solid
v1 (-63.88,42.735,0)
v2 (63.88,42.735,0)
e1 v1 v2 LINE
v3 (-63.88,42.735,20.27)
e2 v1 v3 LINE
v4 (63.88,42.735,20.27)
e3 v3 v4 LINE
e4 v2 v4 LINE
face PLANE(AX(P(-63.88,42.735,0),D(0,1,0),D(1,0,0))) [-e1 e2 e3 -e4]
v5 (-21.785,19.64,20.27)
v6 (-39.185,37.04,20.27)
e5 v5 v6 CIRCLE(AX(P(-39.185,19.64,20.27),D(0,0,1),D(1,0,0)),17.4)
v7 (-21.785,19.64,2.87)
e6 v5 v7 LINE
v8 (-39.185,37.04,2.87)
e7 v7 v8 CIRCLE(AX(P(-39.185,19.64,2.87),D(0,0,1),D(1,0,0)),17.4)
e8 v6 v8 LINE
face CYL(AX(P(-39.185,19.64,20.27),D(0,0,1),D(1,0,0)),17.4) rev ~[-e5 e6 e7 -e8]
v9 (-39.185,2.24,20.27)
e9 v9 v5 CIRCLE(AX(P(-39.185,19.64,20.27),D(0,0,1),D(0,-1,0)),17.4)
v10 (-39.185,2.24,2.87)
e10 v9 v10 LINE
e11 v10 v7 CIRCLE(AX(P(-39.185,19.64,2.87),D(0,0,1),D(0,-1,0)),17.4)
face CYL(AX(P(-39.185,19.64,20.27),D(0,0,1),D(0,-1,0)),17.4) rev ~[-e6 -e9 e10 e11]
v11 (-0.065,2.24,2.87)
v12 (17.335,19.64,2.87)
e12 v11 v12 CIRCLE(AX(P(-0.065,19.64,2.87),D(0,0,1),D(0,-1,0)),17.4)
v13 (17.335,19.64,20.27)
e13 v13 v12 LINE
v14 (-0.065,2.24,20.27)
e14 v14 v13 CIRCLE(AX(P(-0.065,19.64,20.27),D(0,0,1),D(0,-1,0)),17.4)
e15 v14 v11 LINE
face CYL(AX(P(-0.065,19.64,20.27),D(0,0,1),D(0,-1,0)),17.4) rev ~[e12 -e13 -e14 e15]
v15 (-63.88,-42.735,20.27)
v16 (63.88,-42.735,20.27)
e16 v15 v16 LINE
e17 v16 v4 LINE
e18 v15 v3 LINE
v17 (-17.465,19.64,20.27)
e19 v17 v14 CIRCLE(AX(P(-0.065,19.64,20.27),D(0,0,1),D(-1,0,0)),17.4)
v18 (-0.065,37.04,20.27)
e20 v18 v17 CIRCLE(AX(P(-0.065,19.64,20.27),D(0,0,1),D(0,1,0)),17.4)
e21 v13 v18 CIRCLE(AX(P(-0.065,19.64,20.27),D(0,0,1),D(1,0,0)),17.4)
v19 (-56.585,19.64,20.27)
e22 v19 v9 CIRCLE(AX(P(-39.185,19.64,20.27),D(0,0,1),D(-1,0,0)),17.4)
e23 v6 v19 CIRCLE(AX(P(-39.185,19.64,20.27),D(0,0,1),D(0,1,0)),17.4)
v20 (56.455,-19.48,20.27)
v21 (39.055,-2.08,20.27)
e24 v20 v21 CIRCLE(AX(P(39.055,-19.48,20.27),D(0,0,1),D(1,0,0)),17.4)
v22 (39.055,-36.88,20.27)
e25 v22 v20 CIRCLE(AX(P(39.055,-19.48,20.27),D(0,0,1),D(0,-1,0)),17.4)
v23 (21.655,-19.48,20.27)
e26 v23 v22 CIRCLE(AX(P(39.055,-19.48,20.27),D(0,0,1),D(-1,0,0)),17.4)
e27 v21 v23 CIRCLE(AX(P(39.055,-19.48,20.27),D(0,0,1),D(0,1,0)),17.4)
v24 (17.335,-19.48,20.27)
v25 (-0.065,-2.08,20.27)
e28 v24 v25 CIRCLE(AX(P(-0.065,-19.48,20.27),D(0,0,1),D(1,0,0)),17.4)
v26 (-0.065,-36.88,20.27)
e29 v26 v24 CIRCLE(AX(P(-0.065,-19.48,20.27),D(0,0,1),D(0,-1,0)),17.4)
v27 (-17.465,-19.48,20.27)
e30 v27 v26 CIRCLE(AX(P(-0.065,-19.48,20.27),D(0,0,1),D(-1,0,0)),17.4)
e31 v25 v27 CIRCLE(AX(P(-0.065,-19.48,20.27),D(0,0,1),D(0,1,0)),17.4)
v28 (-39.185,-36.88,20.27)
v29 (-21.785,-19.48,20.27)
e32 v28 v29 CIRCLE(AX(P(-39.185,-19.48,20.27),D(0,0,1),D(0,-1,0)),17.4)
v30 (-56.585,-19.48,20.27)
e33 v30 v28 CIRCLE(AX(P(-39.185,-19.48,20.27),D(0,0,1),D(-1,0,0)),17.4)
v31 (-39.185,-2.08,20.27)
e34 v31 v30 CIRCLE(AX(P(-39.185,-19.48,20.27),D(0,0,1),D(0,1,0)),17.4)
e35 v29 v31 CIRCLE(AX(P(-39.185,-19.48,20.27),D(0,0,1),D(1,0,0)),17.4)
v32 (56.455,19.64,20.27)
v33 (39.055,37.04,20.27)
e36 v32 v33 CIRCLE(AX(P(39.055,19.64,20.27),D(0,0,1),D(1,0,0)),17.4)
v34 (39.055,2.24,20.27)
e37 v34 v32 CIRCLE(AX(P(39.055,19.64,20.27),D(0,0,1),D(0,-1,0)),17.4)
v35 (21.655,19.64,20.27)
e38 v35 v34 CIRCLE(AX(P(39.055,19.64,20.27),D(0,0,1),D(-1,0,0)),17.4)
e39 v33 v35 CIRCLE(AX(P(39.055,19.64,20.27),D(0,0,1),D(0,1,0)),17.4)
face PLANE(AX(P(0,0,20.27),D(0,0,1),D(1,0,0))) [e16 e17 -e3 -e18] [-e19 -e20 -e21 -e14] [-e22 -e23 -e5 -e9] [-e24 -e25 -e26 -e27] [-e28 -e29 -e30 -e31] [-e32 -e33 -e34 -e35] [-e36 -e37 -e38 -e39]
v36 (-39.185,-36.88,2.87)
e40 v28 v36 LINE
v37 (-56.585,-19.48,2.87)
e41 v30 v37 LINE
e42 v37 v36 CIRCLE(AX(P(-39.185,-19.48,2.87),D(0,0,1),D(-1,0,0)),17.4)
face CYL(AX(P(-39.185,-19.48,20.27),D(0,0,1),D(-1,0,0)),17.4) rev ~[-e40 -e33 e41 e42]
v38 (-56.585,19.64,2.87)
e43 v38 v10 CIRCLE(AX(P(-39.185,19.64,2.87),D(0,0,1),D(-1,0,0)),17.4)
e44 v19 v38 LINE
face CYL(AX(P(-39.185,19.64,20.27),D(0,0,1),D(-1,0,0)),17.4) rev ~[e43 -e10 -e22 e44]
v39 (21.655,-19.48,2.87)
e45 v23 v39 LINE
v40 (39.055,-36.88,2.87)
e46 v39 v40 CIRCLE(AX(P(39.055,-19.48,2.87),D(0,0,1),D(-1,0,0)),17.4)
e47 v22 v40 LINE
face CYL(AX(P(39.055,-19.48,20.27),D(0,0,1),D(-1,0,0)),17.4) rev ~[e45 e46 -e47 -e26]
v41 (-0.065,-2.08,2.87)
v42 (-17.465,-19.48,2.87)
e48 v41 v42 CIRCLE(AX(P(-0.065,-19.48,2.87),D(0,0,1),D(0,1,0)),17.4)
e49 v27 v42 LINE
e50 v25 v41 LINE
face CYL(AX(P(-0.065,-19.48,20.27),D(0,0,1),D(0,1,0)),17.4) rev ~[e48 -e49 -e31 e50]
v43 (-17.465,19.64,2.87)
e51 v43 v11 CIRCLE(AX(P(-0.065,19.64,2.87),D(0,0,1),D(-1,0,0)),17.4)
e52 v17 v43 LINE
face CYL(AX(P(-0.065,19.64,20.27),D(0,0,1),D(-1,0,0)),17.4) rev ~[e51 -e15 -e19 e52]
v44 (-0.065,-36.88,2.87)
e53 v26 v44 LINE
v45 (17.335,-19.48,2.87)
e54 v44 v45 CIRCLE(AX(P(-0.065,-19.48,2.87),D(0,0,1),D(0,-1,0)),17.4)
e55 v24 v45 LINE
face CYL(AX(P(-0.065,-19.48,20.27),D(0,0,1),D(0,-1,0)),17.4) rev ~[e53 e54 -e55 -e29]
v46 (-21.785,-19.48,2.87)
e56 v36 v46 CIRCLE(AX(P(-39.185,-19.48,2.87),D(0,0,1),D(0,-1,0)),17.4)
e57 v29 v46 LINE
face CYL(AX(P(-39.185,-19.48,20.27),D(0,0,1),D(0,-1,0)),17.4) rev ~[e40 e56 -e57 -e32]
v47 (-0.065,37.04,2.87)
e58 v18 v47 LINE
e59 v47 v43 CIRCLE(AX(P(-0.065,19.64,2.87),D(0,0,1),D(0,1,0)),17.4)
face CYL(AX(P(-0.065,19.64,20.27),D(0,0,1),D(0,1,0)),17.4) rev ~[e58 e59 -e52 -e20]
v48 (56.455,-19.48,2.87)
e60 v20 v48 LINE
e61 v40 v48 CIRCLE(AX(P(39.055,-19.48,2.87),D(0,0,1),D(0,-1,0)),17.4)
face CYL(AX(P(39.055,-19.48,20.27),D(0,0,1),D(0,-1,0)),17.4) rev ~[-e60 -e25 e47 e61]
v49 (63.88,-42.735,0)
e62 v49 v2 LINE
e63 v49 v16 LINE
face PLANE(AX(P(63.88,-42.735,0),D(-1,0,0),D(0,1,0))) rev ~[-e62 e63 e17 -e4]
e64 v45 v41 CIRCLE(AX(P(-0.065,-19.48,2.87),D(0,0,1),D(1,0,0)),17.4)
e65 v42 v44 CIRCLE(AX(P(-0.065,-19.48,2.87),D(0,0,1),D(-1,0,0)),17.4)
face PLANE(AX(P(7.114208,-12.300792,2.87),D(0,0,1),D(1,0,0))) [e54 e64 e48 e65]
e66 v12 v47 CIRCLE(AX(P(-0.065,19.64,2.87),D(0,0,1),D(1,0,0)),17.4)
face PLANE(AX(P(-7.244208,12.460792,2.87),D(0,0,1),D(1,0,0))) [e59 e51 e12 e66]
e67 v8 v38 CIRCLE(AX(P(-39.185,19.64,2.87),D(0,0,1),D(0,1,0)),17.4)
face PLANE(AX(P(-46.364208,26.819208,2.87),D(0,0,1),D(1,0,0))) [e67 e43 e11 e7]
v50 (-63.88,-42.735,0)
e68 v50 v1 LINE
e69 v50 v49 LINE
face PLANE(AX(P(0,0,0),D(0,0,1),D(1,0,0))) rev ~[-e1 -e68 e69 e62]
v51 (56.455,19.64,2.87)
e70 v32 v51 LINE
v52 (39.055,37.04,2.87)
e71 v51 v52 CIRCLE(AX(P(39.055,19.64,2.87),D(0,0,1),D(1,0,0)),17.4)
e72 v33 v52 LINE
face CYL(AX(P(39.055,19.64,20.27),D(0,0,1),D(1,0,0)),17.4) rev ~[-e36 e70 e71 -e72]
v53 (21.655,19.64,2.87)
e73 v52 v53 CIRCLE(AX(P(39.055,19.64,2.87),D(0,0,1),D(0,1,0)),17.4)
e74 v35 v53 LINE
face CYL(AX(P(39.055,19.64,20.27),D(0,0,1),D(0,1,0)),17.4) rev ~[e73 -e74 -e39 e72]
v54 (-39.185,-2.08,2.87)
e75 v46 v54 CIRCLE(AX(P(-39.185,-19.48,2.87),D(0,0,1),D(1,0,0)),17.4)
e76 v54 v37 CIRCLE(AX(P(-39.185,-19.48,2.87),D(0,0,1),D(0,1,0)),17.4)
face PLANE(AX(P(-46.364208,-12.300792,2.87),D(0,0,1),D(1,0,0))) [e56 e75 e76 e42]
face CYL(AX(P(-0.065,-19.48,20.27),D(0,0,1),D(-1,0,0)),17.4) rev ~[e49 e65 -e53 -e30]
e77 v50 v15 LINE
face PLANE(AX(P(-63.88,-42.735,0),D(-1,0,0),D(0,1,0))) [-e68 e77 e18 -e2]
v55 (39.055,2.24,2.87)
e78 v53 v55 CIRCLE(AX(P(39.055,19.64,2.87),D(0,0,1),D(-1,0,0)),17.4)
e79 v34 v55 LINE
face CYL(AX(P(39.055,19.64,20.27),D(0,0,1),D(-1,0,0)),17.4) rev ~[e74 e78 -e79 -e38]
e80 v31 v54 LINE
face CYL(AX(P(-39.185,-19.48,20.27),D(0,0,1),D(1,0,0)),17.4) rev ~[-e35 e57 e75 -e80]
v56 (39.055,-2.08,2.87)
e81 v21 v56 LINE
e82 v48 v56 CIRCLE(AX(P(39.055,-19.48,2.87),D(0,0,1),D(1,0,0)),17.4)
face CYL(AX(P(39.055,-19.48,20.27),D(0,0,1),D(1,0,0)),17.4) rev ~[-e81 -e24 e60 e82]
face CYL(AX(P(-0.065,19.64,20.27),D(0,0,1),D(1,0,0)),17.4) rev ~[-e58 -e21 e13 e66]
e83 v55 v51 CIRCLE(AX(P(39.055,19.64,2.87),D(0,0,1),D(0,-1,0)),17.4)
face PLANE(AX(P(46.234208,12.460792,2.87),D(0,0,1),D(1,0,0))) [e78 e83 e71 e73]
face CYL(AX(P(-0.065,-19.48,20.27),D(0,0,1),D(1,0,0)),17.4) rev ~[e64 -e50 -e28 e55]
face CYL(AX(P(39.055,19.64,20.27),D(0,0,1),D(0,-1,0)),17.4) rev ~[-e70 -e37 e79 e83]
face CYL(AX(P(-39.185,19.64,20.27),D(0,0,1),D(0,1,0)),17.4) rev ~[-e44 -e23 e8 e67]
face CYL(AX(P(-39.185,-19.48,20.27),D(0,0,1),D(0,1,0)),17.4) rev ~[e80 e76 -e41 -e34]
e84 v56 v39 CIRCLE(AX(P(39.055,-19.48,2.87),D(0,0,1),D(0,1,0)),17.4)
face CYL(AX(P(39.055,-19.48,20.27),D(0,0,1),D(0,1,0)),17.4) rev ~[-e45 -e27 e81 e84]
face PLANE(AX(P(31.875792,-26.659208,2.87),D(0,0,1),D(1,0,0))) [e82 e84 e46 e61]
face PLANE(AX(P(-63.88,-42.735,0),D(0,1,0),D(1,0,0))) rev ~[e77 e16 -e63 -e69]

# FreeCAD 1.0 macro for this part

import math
import FreeCAD as App
import Part
import Sketcher
from FreeCAD import Vector


def add_polygon(sketch, points):
    """Adds a closed chain of lines whose ends are joined by coincident constraints."""
    first, n = sketch.GeometryCount, len(points)
    for a, b in zip(points, points[1:] + points[:1]):
        sketch.addGeometry(Part.LineSegment(App.Vector(*a, 0), App.Vector(*b, 0)), False)
    for i in range(n):
        sketch.addConstraint(Sketcher.Constraint("Coincident", first + i, 2, first + (i + 1) % n, 1))

doc = App.newDocument("Part")
body = doc.addObject("PartDesign::Body", "Body")

# Sketch on XY plane
sketch1 = body.newObject("Sketcher::SketchObject", "Sketch")
sketch1.AttachmentSupport = (doc.getObject("XY_Plane"), [""])
sketch1.MapMode = "FlatFace"
add_polygon(sketch1, [(-64, 43), (-64, -43), (64, -43), (64, 43)])  # lines 0-3
sketch1.addConstraint([
    Sketcher.Constraint("Vertical", 0),
    Sketcher.Constraint("Horizontal", 1),
    Sketcher.Constraint("Vertical", 2),
    Sketcher.Constraint("Horizontal", 3),
    Sketcher.Constraint("Symmetric", 0, 2, 2, 2, -1, 1),
    Sketcher.Constraint("DistanceX", 1, 1, 1, 2, 127.76),
    Sketcher.Constraint("DistanceY", 0, 2, 0, 1, 85.47),
])
pad1 = body.newObject("PartDesign::Pad", "Pad")
pad1.Profile = sketch1
pad1.Length = 20.27

# Sketch on XY plane
sketch2 = body.newObject("Sketcher::SketchObject", "Sketch001")
sketch2.AttachmentSupport = (doc.getObject("XY_Plane"), [""])
sketch2.MapMode = "FlatFace"
sketch2.AttachmentOffset = App.Placement(Vector(0, 0, 20.27), App.Rotation())
sketch2.addGeometry([
    Part.ArcOfCircle(Part.Circle(Vector(-39, 20, 0), Vector(0, 0, 1), 17), math.radians(90), math.radians(180)),  # 0
    Part.ArcOfCircle(Part.Circle(Vector(-39, 20, 0), Vector(0, 0, 1), 17), math.radians(180), math.radians(270)),  # 1
    Part.ArcOfCircle(Part.Circle(Vector(-39, 20, 0), Vector(0, 0, 1), 17), math.radians(-90), math.radians(0)),  # 2
    Part.ArcOfCircle(Part.Circle(Vector(-39, 20, 0), Vector(0, 0, 1), 17), math.radians(0), math.radians(90)),  # 3
    Part.ArcOfCircle(Part.Circle(Vector(-39, -19, 0), Vector(0, 0, 1), 17), math.radians(90), math.radians(180)),  # 4
    Part.ArcOfCircle(Part.Circle(Vector(-39, -19, 0), Vector(0, 0, 1), 17), math.radians(180), math.radians(270)),  # 5
    Part.ArcOfCircle(Part.Circle(Vector(-39, -19, 0), Vector(0, 0, 1), 17), math.radians(-90), math.radians(0)),  # 6
    Part.ArcOfCircle(Part.Circle(Vector(-39, -19, 0), Vector(0, 0, 1), 17), math.radians(0), math.radians(90)),  # 7
    Part.ArcOfCircle(Part.Circle(Vector(0, 20, 0), Vector(0, 0, 1), 17), math.radians(0), math.radians(90)),  # 8
    Part.ArcOfCircle(Part.Circle(Vector(0, 20, 0), Vector(0, 0, 1), 17), math.radians(90), math.radians(180)),  # 9
    Part.ArcOfCircle(Part.Circle(Vector(0, 20, 0), Vector(0, 0, 1), 17), math.radians(180), math.radians(270)),  # 10
    Part.ArcOfCircle(Part.Circle(Vector(0, 20, 0), Vector(0, 0, 1), 17), math.radians(-90), math.radians(0)),  # 11
    Part.ArcOfCircle(Part.Circle(Vector(0, -19, 0), Vector(0, 0, 1), 17), math.radians(0), math.radians(90)),  # 12
    Part.ArcOfCircle(Part.Circle(Vector(0, -19, 0), Vector(0, 0, 1), 17), math.radians(90), math.radians(180)),  # 13
    Part.ArcOfCircle(Part.Circle(Vector(0, -19, 0), Vector(0, 0, 1), 17), math.radians(180), math.radians(270)),  # 14
    Part.ArcOfCircle(Part.Circle(Vector(0, -19, 0), Vector(0, 0, 1), 17), math.radians(-90), math.radians(0)),  # 15
    Part.ArcOfCircle(Part.Circle(Vector(39, -19, 0), Vector(0, 0, 1), 17), math.radians(0), math.radians(90)),  # 16
    Part.ArcOfCircle(Part.Circle(Vector(39, -19, 0), Vector(0, 0, 1), 17), math.radians(90), math.radians(180)),  # 17
    Part.ArcOfCircle(Part.Circle(Vector(39, -19, 0), Vector(0, 0, 1), 17), math.radians(180), math.radians(270)),  # 18
    Part.ArcOfCircle(Part.Circle(Vector(39, -19, 0), Vector(0, 0, 1), 17), math.radians(-90), math.radians(0)),  # 19
    Part.ArcOfCircle(Part.Circle(Vector(39, 20, 0), Vector(0, 0, 1), 17), math.radians(-90), math.radians(0)),  # 20
    Part.ArcOfCircle(Part.Circle(Vector(39, 20, 0), Vector(0, 0, 1), 17), math.radians(0), math.radians(90)),  # 21
    Part.ArcOfCircle(Part.Circle(Vector(39, 20, 0), Vector(0, 0, 1), 17), math.radians(90), math.radians(180)),  # 22
    Part.ArcOfCircle(Part.Circle(Vector(39, 20, 0), Vector(0, 0, 1), 17), math.radians(180), math.radians(270)),  # 23
], False)
sketch2.addConstraint([
    Sketcher.Constraint("Tangent", 0, 2, 1, 1),
    Sketcher.Constraint("Tangent", 1, 2, 2, 1),
    Sketcher.Constraint("Tangent", 2, 2, 3, 1),
    Sketcher.Constraint("Tangent", 3, 2, 0, 1),
    Sketcher.Constraint("Tangent", 4, 2, 5, 1),
    Sketcher.Constraint("Tangent", 5, 2, 6, 1),
    Sketcher.Constraint("Tangent", 6, 2, 7, 1),
    Sketcher.Constraint("Tangent", 7, 2, 4, 1),
    Sketcher.Constraint("Tangent", 8, 2, 9, 1),
    Sketcher.Constraint("Tangent", 9, 2, 10, 1),
    Sketcher.Constraint("Tangent", 10, 2, 11, 1),
    Sketcher.Constraint("Tangent", 11, 2, 8, 1),
    Sketcher.Constraint("Tangent", 12, 2, 13, 1),
    Sketcher.Constraint("Tangent", 13, 2, 14, 1),
    Sketcher.Constraint("Tangent", 14, 2, 15, 1),
    Sketcher.Constraint("Tangent", 15, 2, 12, 1),
    Sketcher.Constraint("Tangent", 16, 2, 17, 1),
    Sketcher.Constraint("Tangent", 17, 2, 18, 1),
    Sketcher.Constraint("Tangent", 18, 2, 19, 1),
    Sketcher.Constraint("Tangent", 19, 2, 16, 1),
    Sketcher.Constraint("Tangent", 20, 2, 21, 1),
    Sketcher.Constraint("Tangent", 21, 2, 22, 1),
    Sketcher.Constraint("Tangent", 22, 2, 23, 1),
    Sketcher.Constraint("Tangent", 23, 2, 20, 1),
    Sketcher.Constraint("Equal", 0, 1),
    Sketcher.Constraint("Equal", 3, 4),
    Sketcher.Constraint("Equal", 4, 5),
    Sketcher.Constraint("Equal", 7, 8),
    Sketcher.Constraint("Equal", 8, 9),
    Sketcher.Constraint("Equal", 11, 12),
    Sketcher.Constraint("Equal", 12, 13),
    Sketcher.Constraint("Equal", 15, 16),
    Sketcher.Constraint("Equal", 16, 17),
    Sketcher.Constraint("Equal", 19, 20),
    Sketcher.Constraint("Equal", 20, 21),
    Sketcher.Constraint("Horizontal", 3, 3, 8, 3),
    Sketcher.Constraint("Horizontal", 7, 3, 12, 3),
    Sketcher.Constraint("Horizontal", 15, 3, 16, 3),
    Sketcher.Constraint("Horizontal", 11, 3, 20, 3),
    Sketcher.Constraint("Horizontal", 23, 3, 0, 2),
    Sketcher.Constraint("Horizontal", 0, 2, 2, 2),
    Sketcher.Constraint("Horizontal", 19, 3, 4, 2),
    Sketcher.Constraint("Horizontal", 4, 2, 6, 2),
    Sketcher.Constraint("Horizontal", 2, 2, 9, 2),
    Sketcher.Constraint("Horizontal", 9, 2, 11, 2),
    Sketcher.Constraint("Horizontal", 6, 2, 13, 2),
    Sketcher.Constraint("Horizontal", 13, 2, 15, 2),
    Sketcher.Constraint("Horizontal", 15, 2, 17, 2),
    Sketcher.Constraint("Horizontal", 17, 2, 19, 2),
    Sketcher.Constraint("Horizontal", 11, 2, 20, 2),
    Sketcher.Constraint("Horizontal", 20, 2, 22, 2),
    Sketcher.Constraint("Vertical", 3, 3, 4, 3),
    Sketcher.Constraint("Vertical", 11, 3, 12, 3),
    Sketcher.Constraint("Vertical", 19, 3, 20, 3),
    Sketcher.Constraint("Vertical", 7, 3, 1, 2),
    Sketcher.Constraint("Vertical", 1, 2, 3, 2),
    Sketcher.Constraint("Vertical", 3, 2, 5, 2),
    Sketcher.Constraint("Vertical", 5, 2, 7, 2),
    Sketcher.Constraint("Vertical", 15, 3, 8, 2),
    Sketcher.Constraint("Vertical", 8, 2, 10, 2),
    Sketcher.Constraint("Vertical", 10, 2, 12, 2),
    Sketcher.Constraint("Vertical", 12, 2, 14, 2),
    Sketcher.Constraint("Vertical", 23, 3, 16, 2),
    Sketcher.Constraint("Vertical", 16, 2, 18, 2),
    Sketcher.Constraint("Vertical", 18, 2, 21, 2),
    Sketcher.Constraint("Vertical", 21, 2, 23, 2),
    Sketcher.Constraint("Radius", 0, 17.4),
    Sketcher.Constraint("DistanceY", -1, 1, 0, 3, 19.64),
    Sketcher.Constraint("DistanceY", 4, 3, -1, 1, 19.48),
    Sketcher.Constraint("DistanceX", 0, 3, 8, 3, 39.12),
    Sketcher.Constraint("DistanceX", 12, 3, 16, 3, 39.12),
    Sketcher.Constraint("DistanceX", 0, 3, -1, 1, 39.185),
])
pocket1 = body.newObject("PartDesign::Pocket", "Pocket")
pocket1.Profile = sketch2
pocket1.Length = 17.4

doc.recompute()
